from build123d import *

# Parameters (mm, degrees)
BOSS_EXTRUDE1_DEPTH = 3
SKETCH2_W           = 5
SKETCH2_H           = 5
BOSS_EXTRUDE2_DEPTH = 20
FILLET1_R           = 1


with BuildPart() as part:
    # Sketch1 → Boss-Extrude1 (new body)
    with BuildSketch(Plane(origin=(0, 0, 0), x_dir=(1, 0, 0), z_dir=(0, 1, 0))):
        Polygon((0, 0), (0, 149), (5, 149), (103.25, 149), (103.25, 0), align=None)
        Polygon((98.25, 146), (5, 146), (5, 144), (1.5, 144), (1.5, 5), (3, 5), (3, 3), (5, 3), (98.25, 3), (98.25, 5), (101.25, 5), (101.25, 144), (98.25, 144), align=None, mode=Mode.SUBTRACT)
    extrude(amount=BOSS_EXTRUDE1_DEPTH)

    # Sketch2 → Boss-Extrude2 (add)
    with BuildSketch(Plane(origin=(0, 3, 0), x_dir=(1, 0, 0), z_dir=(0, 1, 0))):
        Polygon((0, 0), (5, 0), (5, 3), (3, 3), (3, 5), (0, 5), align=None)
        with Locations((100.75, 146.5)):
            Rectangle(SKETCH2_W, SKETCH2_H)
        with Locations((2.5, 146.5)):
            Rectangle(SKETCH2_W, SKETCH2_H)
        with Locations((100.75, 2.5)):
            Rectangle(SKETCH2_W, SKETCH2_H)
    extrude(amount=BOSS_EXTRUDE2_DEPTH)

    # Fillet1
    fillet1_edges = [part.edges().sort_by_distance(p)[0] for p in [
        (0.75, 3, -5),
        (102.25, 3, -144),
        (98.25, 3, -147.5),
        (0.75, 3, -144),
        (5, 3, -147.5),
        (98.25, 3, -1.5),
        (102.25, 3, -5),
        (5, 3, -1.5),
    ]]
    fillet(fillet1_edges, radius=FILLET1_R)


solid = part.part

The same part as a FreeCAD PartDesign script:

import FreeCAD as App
import Part
import Sketcher
from FreeCAD import Vector


def edges_at(feature, points):
    """Names of the edges that pass closest to the given points."""
    edges = feature.Shape.Edges
    near = lambda p: min(range(len(edges)), key=lambda i: edges[i].distToShape(Part.Vertex(*p))[0])
    return sorted({f"Edge{near(p) + 1}" for p in points})

doc = App.newDocument("Part")
body = doc.addObject("PartDesign::Body", "Body")

# Sketch on XZ plane
sketch1 = body.newObject("Sketcher::SketchObject", "Sketch")
sketch1.AttachmentSupport = (doc.getObject("XZ_Plane"), [""])
sketch1.MapMode = "FlatFace"
sketch1.addGeometry([
    Part.LineSegment(Vector(0, -149, 0), Vector(0, 0, 0)),  # 0
    Part.LineSegment(Vector(0, 0, 0), Vector(103.25, 0, 0)),  # 1
    Part.LineSegment(Vector(103.25, 0, 0), Vector(103.25, -149, 0)),  # 2
    Part.LineSegment(Vector(103.25, -149, 0), Vector(0, -149, 0)),  # 3
    Part.LineSegment(Vector(98.25, -146, 0), Vector(98.25, -144, 0)),  # 4
    Part.LineSegment(Vector(98.25, -144, 0), Vector(101.25, -144, 0)),  # 5
    Part.LineSegment(Vector(101.25, -144, 0), Vector(101.25, -5, 0)),  # 6
    Part.LineSegment(Vector(101.25, -5, 0), Vector(98.25, -5, 0)),  # 7
    Part.LineSegment(Vector(98.25, -5, 0), Vector(98.25, -3, 0)),  # 8
    Part.LineSegment(Vector(98.25, -3, 0), Vector(3, -3, 0)),  # 9
    Part.LineSegment(Vector(3, -3, 0), Vector(3, -5, 0)),  # 10
    Part.LineSegment(Vector(3, -5, 0), Vector(1.5, -5, 0)),  # 11
    Part.LineSegment(Vector(1.5, -5, 0), Vector(1.5, -144, 0)),  # 12
    Part.LineSegment(Vector(1.5, -144, 0), Vector(5, -144, 0)),  # 13
    Part.LineSegment(Vector(5, -144, 0), Vector(5, -146, 0)),  # 14
    Part.LineSegment(Vector(5, -146, 0), Vector(98.25, -146, 0)),  # 15
], False)
sketch1.addConstraint([
    Sketcher.Constraint("Coincident", 0, 2, 1, 1),
    Sketcher.Constraint("Coincident", 1, 2, 2, 1),
    Sketcher.Constraint("Coincident", 2, 2, 3, 1),
    Sketcher.Constraint("Coincident", 3, 2, 0, 1),
    Sketcher.Constraint("Coincident", 4, 2, 5, 1),
    Sketcher.Constraint("Coincident", 5, 2, 6, 1),
    Sketcher.Constraint("Coincident", 6, 2, 7, 1),
    Sketcher.Constraint("Coincident", 7, 2, 8, 1),
    Sketcher.Constraint("Coincident", 8, 2, 9, 1),
    Sketcher.Constraint("Coincident", 9, 2, 10, 1),
    Sketcher.Constraint("Coincident", 10, 2, 11, 1),
    Sketcher.Constraint("Coincident", 11, 2, 12, 1),
    Sketcher.Constraint("Coincident", 12, 2, 13, 1),
    Sketcher.Constraint("Coincident", 13, 2, 14, 1),
    Sketcher.Constraint("Coincident", 14, 2, 15, 1),
    Sketcher.Constraint("Coincident", 15, 2, 4, 1),
    Sketcher.Constraint("Vertical", 0),
    Sketcher.Constraint("Horizontal", 1),
    Sketcher.Constraint("Vertical", 2),
    Sketcher.Constraint("Horizontal", 3),
    Sketcher.Constraint("Vertical", 4),
    Sketcher.Constraint("Horizontal", 5),
    Sketcher.Constraint("Vertical", 6),
    Sketcher.Constraint("Horizontal", 7),
    Sketcher.Constraint("Vertical", 8),
    Sketcher.Constraint("Horizontal", 9),
    Sketcher.Constraint("Vertical", 10),
    Sketcher.Constraint("Horizontal", 11),
    Sketcher.Constraint("Vertical", 12),
    Sketcher.Constraint("Horizontal", 13),
    Sketcher.Constraint("Vertical", 14),
    Sketcher.Constraint("Horizontal", 15),
    Sketcher.Constraint("Coincident", 0, 2, -1, 1),
    Sketcher.Constraint("Horizontal", 7, 2, 10, 2),
    Sketcher.Constraint("Horizontal", 5, 2, 12, 2),
    Sketcher.Constraint("Vertical", 4, 2, 7, 2),
    Sketcher.Constraint("Equal", 4, 8),
    Sketcher.Constraint("DistanceX", 5, 1, 5, 2, 3.0),
    Sketcher.Constraint("DistanceY", 0, 1, 0, 2, 149.0),
    Sketcher.Constraint("DistanceY", 4, 1, 4, 2, 2.0),
    Sketcher.Constraint("DistanceY", 6, 1, 6, 2, 139.0),
    Sketcher.Constraint("DistanceX", 11, 2, 11, 1, 1.5),
    Sketcher.Constraint("DistanceX", 13, 1, 13, 2, 3.5),
    Sketcher.Constraint("DistanceY", 4, 2, -1, 1, 144.0),
    Sketcher.Constraint("DistanceX", -1, 1, 9, 2, 3.0),
    Sketcher.Constraint("DistanceX", 4, 2, 2, 2, 5.0),
    Sketcher.Constraint("DistanceX", 1, 1, 1, 2, 103.25),
])
pad1 = body.newObject("PartDesign::Pad", "Pad")
pad1.Profile = sketch1
pad1.Length = 3
pad1.Reversed = True

# Sketch on XZ plane
sketch2 = body.newObject("Sketcher::SketchObject", "Sketch001")
sketch2.AttachmentSupport = (doc.getObject("XZ_Plane"), [""])
sketch2.MapMode = "FlatFace"
sketch2.AttachmentOffset = App.Placement(Vector(0, 0, -3), App.Rotation())
sketch2.addGeometry([
    Part.LineSegment(Vector(0, 0, 0), Vector(5, 0, 0)),  # 0
    Part.LineSegment(Vector(5, 0, 0), Vector(5, -3, 0)),  # 1
    Part.LineSegment(Vector(5, -3, 0), Vector(3, -3, 0)),  # 2
    Part.LineSegment(Vector(3, -3, 0), Vector(3, -5, 0)),  # 3
    Part.LineSegment(Vector(3, -5, 0), Vector(0, -5, 0)),  # 4
    Part.LineSegment(Vector(0, -5, 0), Vector(0, 0, 0)),  # 5
    Part.LineSegment(Vector(98.25, -149, 0), Vector(98.25, -144, 0)),  # 6
    Part.LineSegment(Vector(98.25, -144, 0), Vector(103.25, -144, 0)),  # 7
    Part.LineSegment(Vector(103.25, -144, 0), Vector(103.25, -149, 0)),  # 8
    Part.LineSegment(Vector(103.25, -149, 0), Vector(98.25, -149, 0)),  # 9
    Part.LineSegment(Vector(0, -149, 0), Vector(0, -144, 0)),  # 10
    Part.LineSegment(Vector(0, -144, 0), Vector(5, -144, 0)),  # 11
    Part.LineSegment(Vector(5, -144, 0), Vector(5, -149, 0)),  # 12
    Part.LineSegment(Vector(5, -149, 0), Vector(0, -149, 0)),  # 13
    Part.LineSegment(Vector(98.25, -5, 0), Vector(98.25, 0, 0)),  # 14
    Part.LineSegment(Vector(98.25, 0, 0), Vector(103.25, 0, 0)),  # 15
    Part.LineSegment(Vector(103.25, 0, 0), Vector(103.25, -5, 0)),  # 16
    Part.LineSegment(Vector(103.25, -5, 0), Vector(98.25, -5, 0)),  # 17
], False)
sketch2.addConstraint([
    Sketcher.Constraint("Coincident", 0, 2, 1, 1),
    Sketcher.Constraint("Coincident", 1, 2, 2, 1),
    Sketcher.Constraint("Coincident", 2, 2, 3, 1),
    Sketcher.Constraint("Coincident", 3, 2, 4, 1),
    Sketcher.Constraint("Coincident", 4, 2, 5, 1),
    Sketcher.Constraint("Coincident", 5, 2, 0, 1),
    Sketcher.Constraint("Coincident", 6, 2, 7, 1),
    Sketcher.Constraint("Coincident", 7, 2, 8, 1),
    Sketcher.Constraint("Coincident", 8, 2, 9, 1),
    Sketcher.Constraint("Coincident", 9, 2, 6, 1),
    Sketcher.Constraint("Coincident", 10, 2, 11, 1),
    Sketcher.Constraint("Coincident", 11, 2, 12, 1),
    Sketcher.Constraint("Coincident", 12, 2, 13, 1),
    Sketcher.Constraint("Coincident", 13, 2, 10, 1),
    Sketcher.Constraint("Coincident", 14, 2, 15, 1),
    Sketcher.Constraint("Coincident", 15, 2, 16, 1),
    Sketcher.Constraint("Coincident", 16, 2, 17, 1),
    Sketcher.Constraint("Coincident", 17, 2, 14, 1),
    Sketcher.Constraint("Horizontal", 0),
    Sketcher.Constraint("Vertical", 1),
    Sketcher.Constraint("Horizontal", 2),
    Sketcher.Constraint("Vertical", 3),
    Sketcher.Constraint("Horizontal", 4),
    Sketcher.Constraint("Vertical", 5),
    Sketcher.Constraint("Vertical", 6),
    Sketcher.Constraint("Horizontal", 7),
    Sketcher.Constraint("Vertical", 8),
    Sketcher.Constraint("Horizontal", 9),
    Sketcher.Constraint("Vertical", 10),
    Sketcher.Constraint("Horizontal", 11),
    Sketcher.Constraint("Vertical", 12),
    Sketcher.Constraint("Horizontal", 13),
    Sketcher.Constraint("Vertical", 14),
    Sketcher.Constraint("Horizontal", 15),
    Sketcher.Constraint("Vertical", 16),
    Sketcher.Constraint("Horizontal", 17),
    Sketcher.Constraint("Coincident", 5, 2, -1, 1),
    Sketcher.Constraint("PointOnObject", 10, 2, -2),
    Sketcher.Constraint("PointOnObject", 14, 2, -1),
    Sketcher.Constraint("Horizontal", 7, 2, 10, 2),
    Sketcher.Constraint("Horizontal", 9, 2, 12, 2),
    Sketcher.Constraint("Horizontal", 4, 2, 16, 2),
    Sketcher.Constraint("Vertical", 1, 2, 11, 2),
    Sketcher.Constraint("Vertical", 9, 2, 14, 2),
    Sketcher.Constraint("Vertical", 8, 2, 15, 2),
    Sketcher.Constraint("Equal", 0, 7),
    Sketcher.Constraint("Equal", 4, 1),
    Sketcher.Constraint("Equal", 2, 3),
    Sketcher.Constraint("Equal", 5, 6),
    Sketcher.Constraint("DistanceX", 0, 1, 0, 2, 5.0),
    Sketcher.Constraint("DistanceX", 2, 2, 2, 1, 2.0),
    Sketcher.Constraint("DistanceY", 6, 2, -1, 1, 144.0),
    Sketcher.Constraint("DistanceX", -1, 1, 6, 2, 98.25),
])
pad2 = body.newObject("PartDesign::Pad", "Pad001")
pad2.Profile = sketch2
pad2.Length = 20
pad2.Reversed = True
doc.recompute()

fillet = body.newObject("PartDesign::Fillet", "Fillet")
fillet.Base = (pad2, edges_at(pad2, [
    (0.75, 3, -5),
    (102.25, 3, -144),
    (98.25, 3, -147.5),
    (0.75, 3, -144),
    (5, 3, -147.5),
    (98.25, 3, -1.5),
    (102.25, 3, -5),
    (5, 3, -1.5),
]))
fillet.Radius = 1

doc.recompute()
